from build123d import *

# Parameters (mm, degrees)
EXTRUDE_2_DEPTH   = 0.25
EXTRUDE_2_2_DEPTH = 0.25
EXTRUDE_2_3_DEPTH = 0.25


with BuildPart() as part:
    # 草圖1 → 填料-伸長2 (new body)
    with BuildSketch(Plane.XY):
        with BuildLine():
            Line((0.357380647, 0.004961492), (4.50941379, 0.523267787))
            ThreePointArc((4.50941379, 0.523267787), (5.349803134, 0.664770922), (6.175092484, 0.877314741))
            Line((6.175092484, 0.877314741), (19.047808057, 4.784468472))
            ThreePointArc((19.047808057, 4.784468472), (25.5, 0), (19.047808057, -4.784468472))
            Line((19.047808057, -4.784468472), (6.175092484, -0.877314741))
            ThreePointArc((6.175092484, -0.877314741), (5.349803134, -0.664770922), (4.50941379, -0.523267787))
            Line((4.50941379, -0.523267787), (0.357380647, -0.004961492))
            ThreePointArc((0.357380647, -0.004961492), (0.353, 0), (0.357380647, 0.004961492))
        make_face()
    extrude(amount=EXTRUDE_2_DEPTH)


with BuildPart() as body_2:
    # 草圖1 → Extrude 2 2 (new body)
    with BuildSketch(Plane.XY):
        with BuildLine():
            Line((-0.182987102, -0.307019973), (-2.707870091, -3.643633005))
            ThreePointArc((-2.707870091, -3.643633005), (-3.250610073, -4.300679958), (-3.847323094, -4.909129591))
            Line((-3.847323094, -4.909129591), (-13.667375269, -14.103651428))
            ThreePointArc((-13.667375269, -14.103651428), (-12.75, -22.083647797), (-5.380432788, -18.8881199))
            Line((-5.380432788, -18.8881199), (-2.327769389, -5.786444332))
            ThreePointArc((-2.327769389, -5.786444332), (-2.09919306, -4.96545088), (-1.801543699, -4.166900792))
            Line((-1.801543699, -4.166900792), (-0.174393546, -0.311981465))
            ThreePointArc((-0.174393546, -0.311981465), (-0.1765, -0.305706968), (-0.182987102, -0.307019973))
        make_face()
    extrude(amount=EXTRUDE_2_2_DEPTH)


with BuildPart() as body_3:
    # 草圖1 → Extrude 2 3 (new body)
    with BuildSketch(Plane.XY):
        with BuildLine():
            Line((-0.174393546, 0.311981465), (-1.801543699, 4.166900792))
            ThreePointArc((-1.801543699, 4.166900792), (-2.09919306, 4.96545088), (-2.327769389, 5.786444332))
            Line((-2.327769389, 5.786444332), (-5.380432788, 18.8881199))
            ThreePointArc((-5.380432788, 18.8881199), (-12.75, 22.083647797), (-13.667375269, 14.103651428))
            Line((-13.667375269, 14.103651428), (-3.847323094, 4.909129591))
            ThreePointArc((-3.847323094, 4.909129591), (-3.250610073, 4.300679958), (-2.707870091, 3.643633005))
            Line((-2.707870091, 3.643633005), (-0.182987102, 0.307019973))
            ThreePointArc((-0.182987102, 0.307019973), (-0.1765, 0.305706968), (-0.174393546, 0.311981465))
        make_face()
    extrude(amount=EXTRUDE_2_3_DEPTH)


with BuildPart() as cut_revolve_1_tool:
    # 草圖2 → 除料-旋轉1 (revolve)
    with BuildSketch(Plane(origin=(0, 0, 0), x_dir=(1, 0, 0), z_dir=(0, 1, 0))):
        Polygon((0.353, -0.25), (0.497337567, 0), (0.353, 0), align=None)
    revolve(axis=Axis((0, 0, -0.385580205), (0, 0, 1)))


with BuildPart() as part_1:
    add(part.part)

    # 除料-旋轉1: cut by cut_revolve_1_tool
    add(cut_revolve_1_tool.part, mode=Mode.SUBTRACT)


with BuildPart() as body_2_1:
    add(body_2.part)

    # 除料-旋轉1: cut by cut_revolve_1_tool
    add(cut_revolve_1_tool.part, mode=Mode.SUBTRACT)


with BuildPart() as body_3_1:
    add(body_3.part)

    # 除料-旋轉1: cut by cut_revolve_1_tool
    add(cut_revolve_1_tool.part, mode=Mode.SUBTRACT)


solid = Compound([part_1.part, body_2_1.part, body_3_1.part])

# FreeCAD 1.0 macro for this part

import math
import FreeCAD as App
import Part
import Sketcher
from FreeCAD import Vector
Q = App.Units.Quantity

doc = App.newDocument("Part")
body = doc.addObject("PartDesign::Body", "Body")

# Sketch on XY plane
sketch1 = body.newObject("Sketcher::SketchObject", "Sketch")
sketch1.AttachmentSupport = (doc.getObject("XY_Plane"), [""])
sketch1.MapMode = "FlatFace"
sketch1.addGeometry(Part.LineSegment(Vector(4.509, 0.523, 0), Vector(0.357, 0.005, 0)), False)
sketch1.addGeometry(Part.ArcOfCircle(Part.Circle(Vector(0.358, 0, 0), Vector(0, 0, 1), 0.005), math.radians(97), math.radians(263)), False)
sketch1.addGeometry(Part.LineSegment(Vector(0.357, -0.005, 0), Vector(4.509, -0.523, 0)), False)
sketch1.addGeometry(Part.ArcOfCircle(Part.Circle(Vector(3.271, -10.446, 0), Vector(0, 0, 1), 10), math.radians(73.12), math.radians(82.88)), False)
sketch1.addGeometry(Part.LineSegment(Vector(6.175, -0.877, 0), Vector(19.048, -4.784, 0)), False)
sketch1.addGeometry(Part.ArcOfCircle(Part.Circle(Vector(20.5, 0, 0), Vector(0, 0, 1), 5), math.radians(-107), math.radians(107)), False)
sketch1.addGeometry(Part.LineSegment(Vector(19.048, 4.784, 0), Vector(6.175, 0.877, 0)), False)
sketch1.addGeometry(Part.ArcOfCircle(Part.Circle(Vector(3.271, 10.446, 0), Vector(0, 0, 1), 10), math.radians(-82.88), math.radians(-73.12)), False)
sketch1.addConstraint(Sketcher.Constraint("Tangent", 0, 2, 1, 1))
sketch1.addConstraint(Sketcher.Constraint("Tangent", 1, 2, 2, 1))
sketch1.addConstraint(Sketcher.Constraint("Tangent", 2, 2, 3, 2))
sketch1.addConstraint(Sketcher.Constraint("Tangent", 3, 1, 4, 1))
sketch1.addConstraint(Sketcher.Constraint("Tangent", 4, 2, 5, 1))
sketch1.addConstraint(Sketcher.Constraint("Tangent", 5, 2, 6, 1))
sketch1.addConstraint(Sketcher.Constraint("Tangent", 6, 2, 7, 2))
sketch1.addConstraint(Sketcher.Constraint("Tangent", 7, 1, 0, 1))
sketch1.addConstraint(Sketcher.Constraint("Equal", 3, 7))
sketch1.addConstraint(Sketcher.Constraint("Symmetric", 3, 3, 7, 3, -1))
sketch1.addConstraint(Sketcher.Constraint("PointOnObject", 1, 3, -1))
sketch1.addConstraint(Sketcher.Constraint("PointOnObject", 5, 3, -1))
sketch1.addConstraint(Sketcher.Constraint("Radius", 3, Q("10 mm")))
sketch1.addConstraint(Sketcher.Constraint("Radius", 5, Q("5 mm")))
sketch1.addConstraint(Sketcher.Constraint("Radius", 1, Q("0.005 mm")))
sketch1.addConstraint(Sketcher.Constraint("DistanceX", -1, 1, 5, 3, Q("20.5 mm")))
sketch1.addConstraint(Sketcher.Constraint("DistanceX", -1, 1, 1, 3, Q("0.358 mm")))
sketch1.addConstraint(Sketcher.Constraint("DistanceY", 4, 2, 2, 2, Q("4.261201 mm")))
sketch1.addConstraint(Sketcher.Constraint("DistanceX", 3, 3, 4, 2, Q("15.777099 mm")))
pad1 = body.newObject("PartDesign::Pad", "Pad")
pad1.Profile = sketch1
pad1.Length = 0.25
body2 = doc.addObject("PartDesign::Body", "Body001")

# Sketch on XY plane
sketch2 = body2.newObject("Sketcher::SketchObject", "Sketch001")
sketch2.AttachmentSupport = (doc.getObject("XY_Plane001"), [""])
sketch2.MapMode = "FlatFace"
sketch2.addGeometry(Part.LineSegment(Vector(-0.183, -0.307, 0), Vector(-2.708, -3.644, 0)), False)
sketch2.addGeometry(Part.ArcOfCircle(Part.Circle(Vector(-10.682, 2.391, 0), Vector(0, 0, 1), 10), math.radians(-46.88), math.radians(-37.12)), False)
sketch2.addGeometry(Part.LineSegment(Vector(-3.847, -4.909, 0), Vector(-13.667, -14.104, 0)), False)
sketch2.addGeometry(Part.ArcOfCircle(Part.Circle(Vector(-10.25, -17.754, 0), Vector(0, 0, 1), 5), math.radians(133), math.radians(347)), False)
sketch2.addGeometry(Part.LineSegment(Vector(-5.38, -18.888, 0), Vector(-2.328, -5.786, 0)), False)
sketch2.addGeometry(Part.ArcOfCircle(Part.Circle(Vector(7.411, -8.056, 0), Vector(0, 0, 1), 10), math.radians(157.12), math.radians(166.88)), False)
sketch2.addGeometry(Part.LineSegment(Vector(-1.802, -4.167, 0), Vector(-0.174, -0.312, 0)), False)
sketch2.addGeometry(Part.ArcOfCircle(Part.Circle(Vector(-0.179, -0.31, 0), Vector(0, 0, 1), 0.005), math.radians(-23), math.radians(143)), False)
sketch2.addConstraint(Sketcher.Constraint("Tangent", 0, 2, 1, 2))
sketch2.addConstraint(Sketcher.Constraint("Tangent", 1, 1, 2, 1))
sketch2.addConstraint(Sketcher.Constraint("Tangent", 2, 2, 3, 1))
sketch2.addConstraint(Sketcher.Constraint("Tangent", 3, 2, 4, 1))
sketch2.addConstraint(Sketcher.Constraint("Tangent", 4, 2, 5, 2))
sketch2.addConstraint(Sketcher.Constraint("Tangent", 5, 1, 6, 1))
sketch2.addConstraint(Sketcher.Constraint("Tangent", 6, 2, 7, 1))
sketch2.addConstraint(Sketcher.Constraint("Tangent", 7, 2, 0, 1))
sketch2.addConstraint(Sketcher.Constraint("Equal", 1, 5))
sketch2.addConstraint(Sketcher.Constraint("Equal", 2, 4))
sketch2.addConstraint(Sketcher.Constraint("Equal", 0, 6))
sketch2.addConstraint(Sketcher.Constraint("Radius", 1, Q("10 mm")))
sketch2.addConstraint(Sketcher.Constraint("Radius", 3, Q("5 mm")))
sketch2.addConstraint(Sketcher.Constraint("Radius", 7, Q("0.005 mm")))
sketch2.addConstraint(Sketcher.Constraint("DistanceX", 3, 3, -1, 1, Q("10.25 mm")))
sketch2.addConstraint(Sketcher.Constraint("DistanceX", 7, 3, -1, 1, Q("0.179 mm")))
sketch2.addConstraint(Sketcher.Constraint("DistanceY", 5, 1, -1, 1, Q("4.166901 mm")))
sketch2.addConstraint(Sketcher.Constraint("DistanceX", 2, 2, 1, 3, Q("2.985302 mm")))
sketch2.addConstraint(Sketcher.Constraint("DistanceY", 3, 2, 3, 3, Q("1.134599 mm")))
sketch2.addConstraint(Sketcher.Constraint("DistanceX", 0, 2, 4, 2, Q("0.380101 mm")))
pad2 = body2.newObject("PartDesign::Pad", "Pad001")
pad2.Profile = sketch2
pad2.Length = 0.25
body3 = doc.addObject("PartDesign::Body", "Body002")

# Sketch on XY plane
sketch3 = body3.newObject("Sketcher::SketchObject", "Sketch002")
sketch3.AttachmentSupport = (doc.getObject("XY_Plane002"), [""])
sketch3.MapMode = "FlatFace"
sketch3.addGeometry(Part.LineSegment(Vector(-0.174, 0.312, 0), Vector(-1.802, 4.167, 0)), False)
sketch3.addGeometry(Part.ArcOfCircle(Part.Circle(Vector(7.411, 8.056, 0), Vector(0, 0, 1), 10), math.radians(-166.88), math.radians(-157.12)), False)
sketch3.addGeometry(Part.LineSegment(Vector(-2.328, 5.786, 0), Vector(-5.38, 18.888, 0)), False)
sketch3.addGeometry(Part.ArcOfCircle(Part.Circle(Vector(-10.25, 17.754, 0), Vector(0, 0, 1), 5), math.radians(13), math.radians(227)), False)
sketch3.addGeometry(Part.LineSegment(Vector(-13.667, 14.104, 0), Vector(-3.847, 4.909, 0)), False)
sketch3.addGeometry(Part.ArcOfCircle(Part.Circle(Vector(-10.682, -2.391, 0), Vector(0, 0, 1), 10), math.radians(37.12), math.radians(46.88)), False)
sketch3.addGeometry(Part.LineSegment(Vector(-2.708, 3.644, 0), Vector(-0.183, 0.307, 0)), False)
sketch3.addGeometry(Part.ArcOfCircle(Part.Circle(Vector(-0.179, 0.31, 0), Vector(0, 0, 1), 0.005), math.radians(-143), math.radians(23)), False)
sketch3.addConstraint(Sketcher.Constraint("Tangent", 0, 2, 1, 2))
sketch3.addConstraint(Sketcher.Constraint("Tangent", 1, 1, 2, 1))
sketch3.addConstraint(Sketcher.Constraint("Tangent", 2, 2, 3, 1))
sketch3.addConstraint(Sketcher.Constraint("Tangent", 3, 2, 4, 1))
sketch3.addConstraint(Sketcher.Constraint("Tangent", 4, 2, 5, 2))
sketch3.addConstraint(Sketcher.Constraint("Tangent", 5, 1, 6, 1))
sketch3.addConstraint(Sketcher.Constraint("Tangent", 6, 2, 7, 1))
sketch3.addConstraint(Sketcher.Constraint("Tangent", 7, 2, 0, 1))
sketch3.addConstraint(Sketcher.Constraint("Equal", 1, 5))
sketch3.addConstraint(Sketcher.Constraint("Equal", 2, 4))
sketch3.addConstraint(Sketcher.Constraint("Equal", 0, 6))
sketch3.addConstraint(Sketcher.Constraint("Radius", 1, Q("10 mm")))
sketch3.addConstraint(Sketcher.Constraint("Radius", 3, Q("5 mm")))
sketch3.addConstraint(Sketcher.Constraint("Radius", 7, Q("0.005 mm")))
sketch3.addConstraint(Sketcher.Constraint("DistanceX", 3, 3, -1, 1, Q("10.25 mm")))
sketch3.addConstraint(Sketcher.Constraint("DistanceX", 7, 3, -1, 1, Q("0.179 mm")))
sketch3.addConstraint(Sketcher.Constraint("DistanceY", -1, 1, 0, 2, Q("4.166901 mm")))
sketch3.addConstraint(Sketcher.Constraint("DistanceY", 1, 1, 1, 3, Q("2.269198 mm")))
sketch3.addConstraint(Sketcher.Constraint("DistanceX", 3, 2, 5, 3, Q("2.985302 mm")))
sketch3.addConstraint(Sketcher.Constraint("DistanceX", 5, 1, 1, 1, Q("0.380101 mm")))
pad3 = body3.newObject("PartDesign::Pad", "Pad002")
pad3.Profile = sketch3
pad3.Length = 0.25
body4 = doc.addObject("PartDesign::Body", "Body003")

# Sketch on XZ plane
sketch4 = body4.newObject("Sketcher::SketchObject", "Sketch003")
sketch4.AttachmentSupport = (doc.getObject("XZ_Plane003"), [""])
sketch4.MapMode = "FlatFace"
sketch4.addGeometry(Part.LineSegment(Vector(0.35, 0.25, 0), Vector(0.5, 0, 0)), False)
sketch4.addGeometry(Part.LineSegment(Vector(0.5, 0, 0), Vector(0.35, 0, 0)), False)
sketch4.addGeometry(Part.LineSegment(Vector(0.35, 0, 0), Vector(0.35, 0.25, 0)), False)
sketch4.addConstraint(Sketcher.Constraint("Coincident", 0, 2, 1, 1))
sketch4.addConstraint(Sketcher.Constraint("Coincident", 1, 2, 2, 1))
sketch4.addConstraint(Sketcher.Constraint("Coincident", 2, 2, 0, 1))
sketch4.addConstraint(Sketcher.Constraint("Horizontal", 1))
sketch4.addConstraint(Sketcher.Constraint("Vertical", 2))
sketch4.addConstraint(Sketcher.Constraint("PointOnObject", 0, 2, -1))
sketch4.addConstraint(Sketcher.Constraint("Angle", 0, Q("-60 deg")))
sketch4.addConstraint(Sketcher.Constraint("DistanceY", 2, 1, 2, 2, Q("0.25 mm")))
sketch4.addConstraint(Sketcher.Constraint("DistanceX", -1, 1, 1, 2, Q("0.353 mm")))
revolution = body4.newObject("PartDesign::Revolution", "Revolution")
revolution.Profile = sketch4
revolution.ReferenceAxis = (sketch4, ["V_Axis"])
revolution.Angle = 360
doc.recompute()

body5 = doc.addObject("PartDesign::Body", "Body004")
body5.BaseFeature = body4
boolean = body.newObject("PartDesign::Boolean", "Boolean")
boolean.Type = "Cut"
boolean.addObjects([body5])
doc.recompute()

body6 = doc.addObject("PartDesign::Body", "Body005")
body6.BaseFeature = body4
boolean2 = body2.newObject("PartDesign::Boolean", "Boolean001")
boolean2.Type = "Cut"
boolean2.addObjects([body6])
doc.recompute()

boolean3 = body3.newObject("PartDesign::Boolean", "Boolean002")
boolean3.Type = "Cut"
boolean3.addObjects([body4])

doc.recompute()
